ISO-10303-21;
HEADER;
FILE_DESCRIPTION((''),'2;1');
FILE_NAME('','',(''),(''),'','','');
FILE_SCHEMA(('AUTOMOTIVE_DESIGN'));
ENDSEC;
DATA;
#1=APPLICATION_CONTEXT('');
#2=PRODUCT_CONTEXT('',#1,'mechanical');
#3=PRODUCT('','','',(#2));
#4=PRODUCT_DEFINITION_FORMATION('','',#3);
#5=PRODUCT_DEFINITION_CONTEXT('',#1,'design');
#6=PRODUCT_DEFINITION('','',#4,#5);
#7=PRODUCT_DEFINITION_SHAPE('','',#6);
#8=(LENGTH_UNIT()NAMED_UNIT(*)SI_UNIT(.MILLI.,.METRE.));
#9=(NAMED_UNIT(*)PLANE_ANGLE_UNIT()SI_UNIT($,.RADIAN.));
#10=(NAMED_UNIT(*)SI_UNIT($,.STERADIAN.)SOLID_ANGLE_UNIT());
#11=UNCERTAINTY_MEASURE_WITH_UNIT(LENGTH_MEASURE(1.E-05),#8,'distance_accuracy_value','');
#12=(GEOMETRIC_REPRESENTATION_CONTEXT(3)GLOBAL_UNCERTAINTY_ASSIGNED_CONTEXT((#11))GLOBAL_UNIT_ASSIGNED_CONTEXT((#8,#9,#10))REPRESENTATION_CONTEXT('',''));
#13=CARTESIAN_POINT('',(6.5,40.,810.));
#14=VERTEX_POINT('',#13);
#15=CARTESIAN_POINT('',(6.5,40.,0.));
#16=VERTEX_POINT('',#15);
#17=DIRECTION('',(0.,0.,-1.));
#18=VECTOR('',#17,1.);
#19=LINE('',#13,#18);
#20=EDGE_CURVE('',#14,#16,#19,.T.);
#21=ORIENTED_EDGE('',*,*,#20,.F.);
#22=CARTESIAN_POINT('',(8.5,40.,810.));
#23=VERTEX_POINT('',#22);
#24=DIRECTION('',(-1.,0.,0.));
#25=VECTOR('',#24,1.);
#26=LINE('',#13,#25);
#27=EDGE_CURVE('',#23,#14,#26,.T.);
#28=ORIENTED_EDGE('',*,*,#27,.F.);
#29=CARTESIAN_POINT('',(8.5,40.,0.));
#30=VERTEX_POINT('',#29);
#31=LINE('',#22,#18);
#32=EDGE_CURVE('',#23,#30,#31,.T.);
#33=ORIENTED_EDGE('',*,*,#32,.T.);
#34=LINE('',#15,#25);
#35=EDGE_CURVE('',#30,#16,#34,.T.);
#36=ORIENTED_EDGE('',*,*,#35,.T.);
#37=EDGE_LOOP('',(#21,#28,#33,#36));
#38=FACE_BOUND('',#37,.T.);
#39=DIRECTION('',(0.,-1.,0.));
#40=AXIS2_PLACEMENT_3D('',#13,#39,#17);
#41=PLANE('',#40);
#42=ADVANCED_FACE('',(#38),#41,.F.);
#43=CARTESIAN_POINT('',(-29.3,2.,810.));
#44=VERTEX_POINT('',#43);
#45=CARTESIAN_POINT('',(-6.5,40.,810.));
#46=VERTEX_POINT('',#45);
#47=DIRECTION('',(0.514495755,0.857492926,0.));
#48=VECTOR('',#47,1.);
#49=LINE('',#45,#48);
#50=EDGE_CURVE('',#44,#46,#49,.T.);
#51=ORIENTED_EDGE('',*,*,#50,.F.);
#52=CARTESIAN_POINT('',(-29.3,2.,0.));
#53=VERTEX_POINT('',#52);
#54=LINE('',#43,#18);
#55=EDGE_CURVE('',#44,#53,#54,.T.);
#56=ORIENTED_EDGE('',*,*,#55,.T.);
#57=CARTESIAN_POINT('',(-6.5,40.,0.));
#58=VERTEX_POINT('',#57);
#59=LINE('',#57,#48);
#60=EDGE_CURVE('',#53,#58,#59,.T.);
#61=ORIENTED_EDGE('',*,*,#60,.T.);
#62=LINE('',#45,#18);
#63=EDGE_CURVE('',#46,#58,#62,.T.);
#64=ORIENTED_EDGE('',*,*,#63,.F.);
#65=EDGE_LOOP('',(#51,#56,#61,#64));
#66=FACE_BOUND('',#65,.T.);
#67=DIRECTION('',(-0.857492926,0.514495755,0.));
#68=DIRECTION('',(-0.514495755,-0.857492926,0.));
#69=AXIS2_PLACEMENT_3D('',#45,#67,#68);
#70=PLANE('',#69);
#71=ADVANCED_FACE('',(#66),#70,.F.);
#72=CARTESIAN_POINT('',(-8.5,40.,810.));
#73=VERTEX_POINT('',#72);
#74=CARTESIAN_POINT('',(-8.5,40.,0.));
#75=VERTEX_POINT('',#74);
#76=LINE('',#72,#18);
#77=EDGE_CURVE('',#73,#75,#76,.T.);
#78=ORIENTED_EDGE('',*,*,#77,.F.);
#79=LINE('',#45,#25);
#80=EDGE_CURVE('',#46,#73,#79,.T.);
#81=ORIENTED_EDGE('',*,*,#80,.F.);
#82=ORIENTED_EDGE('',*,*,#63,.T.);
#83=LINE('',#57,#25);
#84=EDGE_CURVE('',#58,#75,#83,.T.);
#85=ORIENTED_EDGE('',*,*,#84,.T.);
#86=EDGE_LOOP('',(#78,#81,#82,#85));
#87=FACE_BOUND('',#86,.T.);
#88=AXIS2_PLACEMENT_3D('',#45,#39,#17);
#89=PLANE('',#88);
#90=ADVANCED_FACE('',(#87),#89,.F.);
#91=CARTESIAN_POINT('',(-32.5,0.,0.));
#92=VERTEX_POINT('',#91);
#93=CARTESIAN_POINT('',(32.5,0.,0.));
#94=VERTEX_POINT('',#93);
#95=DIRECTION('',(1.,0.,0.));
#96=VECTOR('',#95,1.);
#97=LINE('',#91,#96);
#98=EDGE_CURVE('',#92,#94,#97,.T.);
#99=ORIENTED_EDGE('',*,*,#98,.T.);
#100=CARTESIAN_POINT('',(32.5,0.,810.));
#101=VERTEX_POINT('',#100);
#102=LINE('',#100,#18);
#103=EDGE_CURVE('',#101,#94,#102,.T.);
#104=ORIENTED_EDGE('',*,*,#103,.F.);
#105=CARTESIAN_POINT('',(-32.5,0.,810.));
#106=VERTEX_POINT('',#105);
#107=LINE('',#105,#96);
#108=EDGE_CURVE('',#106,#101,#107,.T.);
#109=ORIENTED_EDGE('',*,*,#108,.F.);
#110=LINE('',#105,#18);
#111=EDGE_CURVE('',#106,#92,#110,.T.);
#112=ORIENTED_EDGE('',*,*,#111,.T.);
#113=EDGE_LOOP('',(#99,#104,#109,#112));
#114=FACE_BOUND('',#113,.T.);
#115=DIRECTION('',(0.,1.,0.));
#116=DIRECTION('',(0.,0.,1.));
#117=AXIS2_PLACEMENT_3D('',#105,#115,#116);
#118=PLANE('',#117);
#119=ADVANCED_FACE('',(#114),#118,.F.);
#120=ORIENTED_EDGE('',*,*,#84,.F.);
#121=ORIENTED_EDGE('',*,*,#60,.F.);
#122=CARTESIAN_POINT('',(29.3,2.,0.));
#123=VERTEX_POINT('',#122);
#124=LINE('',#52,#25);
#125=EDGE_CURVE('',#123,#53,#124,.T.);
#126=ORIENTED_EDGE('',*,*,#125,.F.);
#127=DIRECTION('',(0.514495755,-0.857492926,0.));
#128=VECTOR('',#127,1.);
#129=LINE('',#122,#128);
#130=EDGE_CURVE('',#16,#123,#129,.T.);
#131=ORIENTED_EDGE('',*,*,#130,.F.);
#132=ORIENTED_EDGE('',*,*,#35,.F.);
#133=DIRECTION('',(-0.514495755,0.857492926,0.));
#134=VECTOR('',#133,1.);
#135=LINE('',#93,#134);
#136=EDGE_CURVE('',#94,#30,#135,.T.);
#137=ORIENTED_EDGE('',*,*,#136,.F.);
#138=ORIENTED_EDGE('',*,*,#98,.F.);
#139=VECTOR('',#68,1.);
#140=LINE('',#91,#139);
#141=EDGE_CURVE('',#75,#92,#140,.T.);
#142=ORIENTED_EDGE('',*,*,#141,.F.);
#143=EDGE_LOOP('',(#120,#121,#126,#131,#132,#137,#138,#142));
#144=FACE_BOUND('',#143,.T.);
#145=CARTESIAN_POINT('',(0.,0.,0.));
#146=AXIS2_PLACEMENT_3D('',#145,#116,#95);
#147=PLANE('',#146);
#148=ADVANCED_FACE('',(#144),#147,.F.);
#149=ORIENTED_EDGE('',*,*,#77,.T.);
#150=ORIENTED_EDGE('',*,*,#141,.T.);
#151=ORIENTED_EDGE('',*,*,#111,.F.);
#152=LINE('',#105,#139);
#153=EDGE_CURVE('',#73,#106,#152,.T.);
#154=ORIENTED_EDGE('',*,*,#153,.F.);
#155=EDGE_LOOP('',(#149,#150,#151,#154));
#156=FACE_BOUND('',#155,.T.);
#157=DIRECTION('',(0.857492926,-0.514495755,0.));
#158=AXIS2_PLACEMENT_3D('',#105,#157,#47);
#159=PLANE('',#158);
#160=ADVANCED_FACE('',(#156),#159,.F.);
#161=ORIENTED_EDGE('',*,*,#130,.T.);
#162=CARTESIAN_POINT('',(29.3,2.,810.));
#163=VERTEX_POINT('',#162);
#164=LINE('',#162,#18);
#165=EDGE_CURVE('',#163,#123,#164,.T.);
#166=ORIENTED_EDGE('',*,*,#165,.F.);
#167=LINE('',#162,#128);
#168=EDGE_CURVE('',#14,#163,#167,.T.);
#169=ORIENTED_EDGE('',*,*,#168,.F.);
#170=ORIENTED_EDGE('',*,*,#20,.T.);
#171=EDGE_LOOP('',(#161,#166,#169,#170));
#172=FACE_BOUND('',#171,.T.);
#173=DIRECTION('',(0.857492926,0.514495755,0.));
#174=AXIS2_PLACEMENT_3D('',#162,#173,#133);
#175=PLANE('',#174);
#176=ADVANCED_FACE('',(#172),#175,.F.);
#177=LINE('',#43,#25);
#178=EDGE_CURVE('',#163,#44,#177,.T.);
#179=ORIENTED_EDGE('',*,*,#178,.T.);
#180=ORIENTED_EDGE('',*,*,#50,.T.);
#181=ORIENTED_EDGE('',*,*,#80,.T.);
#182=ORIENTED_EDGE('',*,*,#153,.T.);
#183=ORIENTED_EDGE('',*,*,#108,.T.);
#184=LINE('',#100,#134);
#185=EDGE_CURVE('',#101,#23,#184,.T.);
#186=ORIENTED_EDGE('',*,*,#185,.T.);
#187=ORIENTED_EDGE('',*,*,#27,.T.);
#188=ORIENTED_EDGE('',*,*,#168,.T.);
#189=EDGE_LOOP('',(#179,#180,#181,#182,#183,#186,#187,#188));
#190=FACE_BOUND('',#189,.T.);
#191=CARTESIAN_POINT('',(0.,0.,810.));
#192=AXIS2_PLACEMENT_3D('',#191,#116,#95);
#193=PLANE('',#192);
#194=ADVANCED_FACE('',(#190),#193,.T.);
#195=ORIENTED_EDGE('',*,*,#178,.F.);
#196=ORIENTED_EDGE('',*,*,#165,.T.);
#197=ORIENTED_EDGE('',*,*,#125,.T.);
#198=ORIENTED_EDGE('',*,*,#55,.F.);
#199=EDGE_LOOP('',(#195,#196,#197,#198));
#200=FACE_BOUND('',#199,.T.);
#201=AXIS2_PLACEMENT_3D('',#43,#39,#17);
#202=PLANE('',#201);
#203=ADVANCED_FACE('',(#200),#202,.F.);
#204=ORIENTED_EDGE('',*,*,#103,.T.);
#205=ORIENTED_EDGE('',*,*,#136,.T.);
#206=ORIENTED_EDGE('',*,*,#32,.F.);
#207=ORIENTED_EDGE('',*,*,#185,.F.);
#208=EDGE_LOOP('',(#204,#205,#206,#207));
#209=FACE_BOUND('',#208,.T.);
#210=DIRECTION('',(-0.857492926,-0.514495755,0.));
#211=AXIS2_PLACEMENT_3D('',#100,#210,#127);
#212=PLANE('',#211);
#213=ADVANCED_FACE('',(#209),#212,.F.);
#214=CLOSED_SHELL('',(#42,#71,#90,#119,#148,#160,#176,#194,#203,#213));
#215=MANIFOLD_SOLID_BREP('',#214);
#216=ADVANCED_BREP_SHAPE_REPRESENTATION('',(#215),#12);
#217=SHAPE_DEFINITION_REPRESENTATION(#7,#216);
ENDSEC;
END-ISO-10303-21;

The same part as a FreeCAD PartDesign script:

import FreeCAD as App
import Part
import Sketcher
from FreeCAD import Vector
Q = App.Units.Quantity


def add_polygon(sketch, points):
    """Adds a closed chain of lines whose ends are joined by coincident constraints."""
    first, n = sketch.GeometryCount, len(points)
    for a, b in zip(points, points[1:] + points[:1]):
        sketch.addGeometry(Part.LineSegment(App.Vector(*a, 0), App.Vector(*b, 0)), False)
    for i in range(n):
        sketch.addConstraint(Sketcher.Constraint("Coincident", first + i, 2, first + (i + 1) % n, 1))

doc = App.newDocument("Part")
body = doc.addObject("PartDesign::Body", "Body")

# Sketch on XY plane
sketch1 = body.newObject("Sketcher::SketchObject", "Sketch")
sketch1.AttachmentSupport = (doc.getObject("XY_Plane"), [""])
sketch1.MapMode = "FlatFace"
add_polygon(sketch1, [(-32.5, 0), (32.5, 0), (8.5, 40), (6.5, 40), (29.3, 2), (-29.3, 2), (-6.5, 40), (-8.5, 40)])  # lines 0-7
sketch1.addConstraint([
    Sketcher.Constraint("Horizontal", 0),
    Sketcher.Constraint("Horizontal", 2),
    Sketcher.Constraint("Horizontal", 4),
    Sketcher.Constraint("Horizontal", 6),
    Sketcher.Constraint("Symmetric", 0, 2, 7, 2, -1, 1),
    Sketcher.Constraint("Symmetric", 2, 2, 5, 2, -2),
    Sketcher.Constraint("Parallel", 1, 3),
    Sketcher.Constraint("Parallel", 5, 7),
    Sketcher.Constraint("Equal", 2, 6),
    Sketcher.Constraint("DistanceX", 0, 1, 0, 2, Q("65 mm")),
    Sketcher.Constraint("DistanceX", 2, 2, 2, 1, Q("2 mm")),
    Sketcher.Constraint("DistanceX", 4, 2, 4, 1, Q("58.6 mm")),
    Sketcher.Constraint("DistanceY", -1, 1, 1, 2, Q("40 mm")),
    Sketcher.Constraint("DistanceY", -1, 1, 3, 2, Q("2 mm")),
])
pad1 = body.newObject("PartDesign::Pad", "Pad")
pad1.Profile = sketch1
pad1.Length = 810

doc.recompute()
